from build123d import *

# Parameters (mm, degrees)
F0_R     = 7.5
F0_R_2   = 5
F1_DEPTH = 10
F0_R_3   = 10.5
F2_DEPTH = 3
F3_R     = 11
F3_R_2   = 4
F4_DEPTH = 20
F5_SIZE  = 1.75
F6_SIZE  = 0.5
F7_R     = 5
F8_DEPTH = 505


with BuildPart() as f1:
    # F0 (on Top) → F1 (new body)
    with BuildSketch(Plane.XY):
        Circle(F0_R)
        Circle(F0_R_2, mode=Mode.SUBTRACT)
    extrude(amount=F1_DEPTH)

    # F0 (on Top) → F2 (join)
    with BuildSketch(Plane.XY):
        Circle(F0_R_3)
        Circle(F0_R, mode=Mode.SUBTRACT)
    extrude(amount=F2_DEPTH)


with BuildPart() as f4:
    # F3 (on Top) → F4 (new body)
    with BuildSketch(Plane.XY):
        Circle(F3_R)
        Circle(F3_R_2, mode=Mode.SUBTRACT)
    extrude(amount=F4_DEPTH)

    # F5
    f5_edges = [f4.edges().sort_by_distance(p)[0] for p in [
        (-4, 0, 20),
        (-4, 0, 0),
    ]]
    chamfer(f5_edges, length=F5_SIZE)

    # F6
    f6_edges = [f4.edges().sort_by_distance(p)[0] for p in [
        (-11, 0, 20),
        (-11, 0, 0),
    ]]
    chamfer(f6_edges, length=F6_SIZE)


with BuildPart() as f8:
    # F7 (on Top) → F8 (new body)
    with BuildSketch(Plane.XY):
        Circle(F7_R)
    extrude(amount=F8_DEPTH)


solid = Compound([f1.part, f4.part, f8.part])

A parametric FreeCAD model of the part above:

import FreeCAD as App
import Part
import Sketcher
from FreeCAD import Vector
Q = App.Units.Quantity


def edges_at(feature, points):
    """Names of the edges that pass closest to the given points."""
    edges = feature.Shape.Edges
    near = lambda p: min(range(len(edges)), key=lambda i: edges[i].distToShape(Part.Vertex(*p))[0])
    return sorted({f"Edge{near(p) + 1}" for p in points})

doc = App.newDocument("Part")
body = doc.addObject("PartDesign::Body", "Body")

# Sketch on XY plane
sketch1 = body.newObject("Sketcher::SketchObject", "Sketch")
sketch1.AttachmentSupport = (doc.getObject("XY_Plane"), [""])
sketch1.MapMode = "FlatFace"
sketch1.addGeometry(Part.Circle(Vector(0, 0, 0), Vector(0, 0, 1), 7.5), False)
sketch1.addGeometry(Part.Circle(Vector(0, 0, 0), Vector(0, 0, 1), 5), False)
sketch1.addConstraint(Sketcher.Constraint("Coincident", 0, 3, -1, 1))
sketch1.addConstraint(Sketcher.Constraint("Coincident", 1, 3, -1, 1))
sketch1.addConstraint(Sketcher.Constraint("Diameter", 0, Q("15 mm")))
sketch1.addConstraint(Sketcher.Constraint("Diameter", 1, Q("10 mm")))
pad1 = body.newObject("PartDesign::Pad", "Pad")
pad1.Profile = sketch1
pad1.Length = 10

# Sketch on XY plane
sketch2 = body.newObject("Sketcher::SketchObject", "Sketch001")
sketch2.AttachmentSupport = (doc.getObject("XY_Plane"), [""])
sketch2.MapMode = "FlatFace"
sketch2.addGeometry(Part.Circle(Vector(0, 0, 0), Vector(0, 0, 1), 10.5), False)
sketch2.addGeometry(Part.Circle(Vector(0, 0, 0), Vector(0, 0, 1), 7.5), False)
sketch2.addConstraint(Sketcher.Constraint("Coincident", 0, 3, -1, 1))
sketch2.addConstraint(Sketcher.Constraint("Coincident", 1, 3, -1, 1))
sketch2.addConstraint(Sketcher.Constraint("Diameter", 0, Q("21 mm")))
sketch2.addConstraint(Sketcher.Constraint("Diameter", 1, Q("15 mm")))
pad2 = body.newObject("PartDesign::Pad", "Pad001")
pad2.Profile = sketch2
pad2.Length = 3
body2 = doc.addObject("PartDesign::Body", "Body001")

# Sketch on XY plane
sketch3 = body2.newObject("Sketcher::SketchObject", "Sketch002")
sketch3.AttachmentSupport = (doc.getObject("XY_Plane001"), [""])
sketch3.MapMode = "FlatFace"
sketch3.addGeometry(Part.Circle(Vector(0, 0, 0), Vector(0, 0, 1), 11), False)
sketch3.addGeometry(Part.Circle(Vector(0, 0, 0), Vector(0, 0, 1), 4), False)
sketch3.addConstraint(Sketcher.Constraint("Coincident", 0, 3, -1, 1))
sketch3.addConstraint(Sketcher.Constraint("Coincident", 1, 3, -1, 1))
sketch3.addConstraint(Sketcher.Constraint("Diameter", 0, Q("22 mm")))
sketch3.addConstraint(Sketcher.Constraint("Diameter", 1, Q("8 mm")))
pad3 = body2.newObject("PartDesign::Pad", "Pad002")
pad3.Profile = sketch3
pad3.Length = 20
doc.recompute()

chamfer = body2.newObject("PartDesign::Chamfer", "Chamfer")
chamfer.Base = (pad3, edges_at(pad3, [(-4, 0, 20), (-4, 0, 0)]))
chamfer.Size = 1.75
doc.recompute()

chamfer2 = body2.newObject("PartDesign::Chamfer", "Chamfer001")
chamfer2.Base = (chamfer, edges_at(chamfer, [(-11, 0, 20), (-11, 0, 0)]))
chamfer2.Size = 0.5
body3 = doc.addObject("PartDesign::Body", "Body002")

# Sketch on XY plane
sketch4 = body3.newObject("Sketcher::SketchObject", "Sketch003")
sketch4.AttachmentSupport = (doc.getObject("XY_Plane002"), [""])
sketch4.MapMode = "FlatFace"
sketch4.addGeometry(Part.Circle(Vector(0, 0, 0), Vector(0, 0, 1), 5), False)
sketch4.addConstraint(Sketcher.Constraint("Coincident", 0, 3, -1, 1))
sketch4.addConstraint(Sketcher.Constraint("Diameter", 0, Q("10 mm")))
pad4 = body3.newObject("PartDesign::Pad", "Pad003")
pad4.Profile = sketch4
pad4.Length = 505

doc.recompute()
